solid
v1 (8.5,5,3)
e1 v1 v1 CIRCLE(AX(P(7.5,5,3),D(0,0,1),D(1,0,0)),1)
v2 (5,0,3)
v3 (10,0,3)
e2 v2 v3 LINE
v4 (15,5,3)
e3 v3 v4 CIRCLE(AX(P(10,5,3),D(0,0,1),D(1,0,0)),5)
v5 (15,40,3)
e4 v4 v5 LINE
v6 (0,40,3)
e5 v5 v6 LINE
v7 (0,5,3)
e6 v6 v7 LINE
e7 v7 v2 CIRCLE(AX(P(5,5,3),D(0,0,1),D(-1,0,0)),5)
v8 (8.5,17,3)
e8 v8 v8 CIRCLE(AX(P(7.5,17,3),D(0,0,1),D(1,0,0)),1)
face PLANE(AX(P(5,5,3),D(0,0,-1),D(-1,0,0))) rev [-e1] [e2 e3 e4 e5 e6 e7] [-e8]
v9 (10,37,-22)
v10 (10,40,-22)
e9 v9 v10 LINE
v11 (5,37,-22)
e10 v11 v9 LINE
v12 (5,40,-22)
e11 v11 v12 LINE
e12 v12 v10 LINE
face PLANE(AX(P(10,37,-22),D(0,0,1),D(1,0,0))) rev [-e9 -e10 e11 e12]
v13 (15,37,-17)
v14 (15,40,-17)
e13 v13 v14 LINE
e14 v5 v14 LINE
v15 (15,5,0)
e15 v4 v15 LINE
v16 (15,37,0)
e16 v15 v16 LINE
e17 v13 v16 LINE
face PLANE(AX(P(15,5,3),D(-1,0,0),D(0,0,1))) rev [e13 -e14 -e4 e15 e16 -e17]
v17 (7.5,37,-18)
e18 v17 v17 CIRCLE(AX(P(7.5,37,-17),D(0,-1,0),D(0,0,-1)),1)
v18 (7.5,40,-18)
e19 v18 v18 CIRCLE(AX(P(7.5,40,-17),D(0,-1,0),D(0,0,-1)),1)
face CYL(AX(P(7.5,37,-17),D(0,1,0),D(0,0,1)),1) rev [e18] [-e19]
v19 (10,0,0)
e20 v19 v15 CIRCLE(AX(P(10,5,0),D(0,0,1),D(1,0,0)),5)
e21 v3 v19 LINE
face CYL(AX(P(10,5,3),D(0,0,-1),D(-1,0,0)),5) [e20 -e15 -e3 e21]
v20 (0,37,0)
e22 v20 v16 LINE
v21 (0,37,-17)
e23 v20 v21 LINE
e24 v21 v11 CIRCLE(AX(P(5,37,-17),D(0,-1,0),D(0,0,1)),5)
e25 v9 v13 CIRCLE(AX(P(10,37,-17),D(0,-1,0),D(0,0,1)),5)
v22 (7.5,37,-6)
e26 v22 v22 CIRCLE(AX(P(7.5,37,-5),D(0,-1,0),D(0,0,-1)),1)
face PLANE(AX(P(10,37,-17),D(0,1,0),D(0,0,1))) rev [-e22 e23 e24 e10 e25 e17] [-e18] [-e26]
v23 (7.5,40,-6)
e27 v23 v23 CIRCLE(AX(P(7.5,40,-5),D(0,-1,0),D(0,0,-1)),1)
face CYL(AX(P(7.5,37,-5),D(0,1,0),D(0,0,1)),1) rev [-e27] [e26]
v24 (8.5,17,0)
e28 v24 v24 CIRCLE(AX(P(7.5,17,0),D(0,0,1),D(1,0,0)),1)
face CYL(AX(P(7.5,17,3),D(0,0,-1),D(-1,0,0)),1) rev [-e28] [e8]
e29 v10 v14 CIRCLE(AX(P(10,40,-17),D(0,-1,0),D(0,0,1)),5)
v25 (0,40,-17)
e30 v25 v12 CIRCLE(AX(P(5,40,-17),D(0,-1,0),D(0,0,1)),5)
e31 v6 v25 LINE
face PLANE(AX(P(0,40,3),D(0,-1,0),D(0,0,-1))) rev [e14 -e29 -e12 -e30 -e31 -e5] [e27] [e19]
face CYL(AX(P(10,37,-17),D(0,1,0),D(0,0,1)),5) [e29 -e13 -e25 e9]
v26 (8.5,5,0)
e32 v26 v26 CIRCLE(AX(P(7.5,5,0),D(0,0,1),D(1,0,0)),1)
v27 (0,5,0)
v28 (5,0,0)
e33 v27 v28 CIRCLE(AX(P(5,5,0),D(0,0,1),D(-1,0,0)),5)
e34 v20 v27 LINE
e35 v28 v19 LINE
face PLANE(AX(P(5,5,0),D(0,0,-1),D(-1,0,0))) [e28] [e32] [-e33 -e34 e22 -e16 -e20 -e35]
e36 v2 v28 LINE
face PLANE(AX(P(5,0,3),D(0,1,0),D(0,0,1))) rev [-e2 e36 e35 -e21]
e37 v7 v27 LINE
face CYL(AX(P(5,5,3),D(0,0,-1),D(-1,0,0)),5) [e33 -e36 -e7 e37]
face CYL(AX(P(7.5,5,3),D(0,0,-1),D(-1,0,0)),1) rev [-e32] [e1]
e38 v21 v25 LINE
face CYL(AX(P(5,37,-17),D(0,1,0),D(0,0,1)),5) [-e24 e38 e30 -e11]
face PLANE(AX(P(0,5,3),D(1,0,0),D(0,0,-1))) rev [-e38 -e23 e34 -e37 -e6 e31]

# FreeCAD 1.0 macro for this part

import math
import FreeCAD as App
import Part
import Sketcher
from FreeCAD import Vector
Q = App.Units.Quantity

doc = App.newDocument("Part")
body = doc.addObject("PartDesign::Body", "Body")

# Sketch on XY plane
sketch1 = body.newObject("Sketcher::SketchObject", "Sketch")
sketch1.AttachmentSupport = (doc.getObject("XY_Plane"), [""])
sketch1.MapMode = "FlatFace"
sketch1.addGeometry([
    Part.LineSegment(Vector(5, 0, 0), Vector(10, 0, 0)),  # 0
    Part.ArcOfCircle(Part.Circle(Vector(10, 5, 0), Vector(0, 0, 1), 5), math.radians(-90), math.radians(0)),  # 1
    Part.LineSegment(Vector(15, 5, 0), Vector(15, 40, 0)),  # 2
    Part.LineSegment(Vector(15, 40, 0), Vector(0, 40, 0)),  # 3
    Part.LineSegment(Vector(0, 40, 0), Vector(0, 5, 0)),  # 4
    Part.ArcOfCircle(Part.Circle(Vector(5, 5, 0), Vector(0, 0, 1), 5), math.radians(180), math.radians(270)),  # 5
    Part.Circle(Vector(7.5, 5, 0), Vector(0, 0, 1), 1),  # 6
    Part.Circle(Vector(7.5, 17, 0), Vector(0, 0, 1), 1),  # 7
], False)
sketch1.addConstraint([
    Sketcher.Constraint("Tangent", 0, 2, 1, 1),
    Sketcher.Constraint("Tangent", 1, 2, 2, 1),
    Sketcher.Constraint("Coincident", 2, 2, 3, 1),
    Sketcher.Constraint("Coincident", 3, 2, 4, 1),
    Sketcher.Constraint("Tangent", 4, 2, 5, 1),
    Sketcher.Constraint("Tangent", 5, 2, 0, 1),
    Sketcher.Constraint("Horizontal", 0),
    Sketcher.Constraint("Vertical", 2),
    Sketcher.Constraint("Horizontal", 3),
    Sketcher.Constraint("Vertical", 4),
    Sketcher.Constraint("Equal", 1, 5),
    Sketcher.Constraint("Equal", 6, 7),
    Sketcher.Constraint("PointOnObject", 0, 2, -1),
    Sketcher.Constraint("PointOnObject", 3, 2, -2),
    Sketcher.Constraint("Horizontal", 5, 3, 6, 3),
    Sketcher.Constraint("Vertical", 6, 3, 7, 3),
    Sketcher.Constraint("Diameter", 6, Q("2 mm")),
    Sketcher.Constraint("Radius", 1, Q("5 mm")),
    Sketcher.Constraint("DistanceX", 0, 1, 0, 2, Q("5 mm")),
    Sketcher.Constraint("DistanceY", 2, 1, 2, 2, Q("35 mm")),
    Sketcher.Constraint("DistanceY", -1, 1, 7, 3, Q("17 mm")),
    Sketcher.Constraint("DistanceX", -1, 1, 6, 3, Q("7.5 mm")),
])
pad1 = body.newObject("PartDesign::Pad", "Pad")
pad1.Profile = sketch1
pad1.Length = 3

# Sketch on XZ plane
sketch2 = body.newObject("Sketcher::SketchObject", "Sketch001")
sketch2.AttachmentSupport = (doc.getObject("XZ_Plane"), [""])
sketch2.MapMode = "FlatFace"
sketch2.AttachmentOffset = App.Placement(Vector(0, 0, -40), App.Rotation())
sketch2.addGeometry([
    Part.LineSegment(Vector(15, 3, 0), Vector(0, 3, 0)),  # 0
    Part.LineSegment(Vector(0, 3, 0), Vector(0, -17, 0)),  # 1
    Part.ArcOfCircle(Part.Circle(Vector(5, -17, 0), Vector(0, 0, 1), 5), math.radians(180), math.radians(270)),  # 2
    Part.LineSegment(Vector(5, -22, 0), Vector(10, -22, 0)),  # 3
    Part.ArcOfCircle(Part.Circle(Vector(10, -17, 0), Vector(0, 0, 1), 5), math.radians(-90), math.radians(0)),  # 4
    Part.LineSegment(Vector(15, -17, 0), Vector(15, 3, 0)),  # 5
    Part.Circle(Vector(7.5, -5, 0), Vector(0, 0, 1), 1),  # 6
    Part.Circle(Vector(7.5, -17, 0), Vector(0, 0, 1), 1),  # 7
], False)
sketch2.addConstraint([
    Sketcher.Constraint("Coincident", 0, 2, 1, 1),
    Sketcher.Constraint("Tangent", 1, 2, 2, 1),
    Sketcher.Constraint("Tangent", 2, 2, 3, 1),
    Sketcher.Constraint("Tangent", 3, 2, 4, 1),
    Sketcher.Constraint("Tangent", 4, 2, 5, 1),
    Sketcher.Constraint("Coincident", 5, 2, 0, 1),
    Sketcher.Constraint("Horizontal", 0),
    Sketcher.Constraint("Vertical", 1),
    Sketcher.Constraint("Horizontal", 3),
    Sketcher.Constraint("Vertical", 5),
    Sketcher.Constraint("Equal", 2, 4),
    Sketcher.Constraint("Equal", 6, 7),
    Sketcher.Constraint("PointOnObject", 0, 2, -2),
    Sketcher.Constraint("Horizontal", 4, 3, 7, 3),
    Sketcher.Constraint("Vertical", 6, 3, 7, 3),
    Sketcher.Constraint("Diameter", 6, Q("2 mm")),
    Sketcher.Constraint("Radius", 2, Q("5 mm")),
    Sketcher.Constraint("DistanceX", 0, 2, 0, 1, Q("15 mm")),
    Sketcher.Constraint("DistanceY", 1, 2, 1, 1, Q("20 mm")),
    Sketcher.Constraint("DistanceY", 2, 3, -1, 1, Q("17 mm")),
    Sketcher.Constraint("DistanceY", 6, 3, -1, 1, Q("5 mm")),
    Sketcher.Constraint("DistanceX", -1, 1, 6, 3, Q("7.5 mm")),
])
pad2 = body.newObject("PartDesign::Pad", "Pad001")
pad2.Profile = sketch2
pad2.Length = 3

doc.recompute()
